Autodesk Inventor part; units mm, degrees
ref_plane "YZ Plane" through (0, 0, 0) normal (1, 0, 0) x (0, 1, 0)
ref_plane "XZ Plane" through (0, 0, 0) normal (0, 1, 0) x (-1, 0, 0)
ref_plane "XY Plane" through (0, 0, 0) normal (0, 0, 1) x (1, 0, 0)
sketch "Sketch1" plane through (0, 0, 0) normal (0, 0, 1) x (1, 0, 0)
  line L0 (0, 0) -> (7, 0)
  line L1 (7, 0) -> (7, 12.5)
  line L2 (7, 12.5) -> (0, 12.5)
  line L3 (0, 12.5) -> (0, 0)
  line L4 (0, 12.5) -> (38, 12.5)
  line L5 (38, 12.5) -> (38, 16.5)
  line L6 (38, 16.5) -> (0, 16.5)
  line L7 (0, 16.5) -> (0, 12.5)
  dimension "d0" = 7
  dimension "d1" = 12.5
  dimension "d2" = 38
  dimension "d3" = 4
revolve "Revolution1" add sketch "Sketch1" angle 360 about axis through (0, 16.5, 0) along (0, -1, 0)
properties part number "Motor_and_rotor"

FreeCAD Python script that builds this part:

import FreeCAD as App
import Part
import Sketcher

V = App.Vector


def add_polygon(sketch, points):
    """Adds a closed chain of lines whose ends are joined by coincident constraints."""
    first, n = sketch.GeometryCount, len(points)
    for a, b in zip(points, points[1:] + points[:1]):
        sketch.addGeometry(Part.LineSegment(App.Vector(*a, 0), App.Vector(*b, 0)), False)
    for i in range(n):
        sketch.addConstraint(Sketcher.Constraint("Coincident", first + i, 2, first + (i + 1) % n, 1))

doc = App.newDocument("Part")
body = doc.addObject("PartDesign::Body", "Body")

sketch1 = doc.addObject("Sketcher::SketchObject", "Sketch")
body.addObject(sketch1)
sketch1.AttachmentSupport = (doc.XY_Plane, [""])
sketch1.MapMode = "FlatFace"
add_polygon(sketch1, [(0, 0), (7, 0), (7, 12.5), (38, 12.5), (38, 16.5), (0, 16.5)])
sketch1.addConstraint([
    Sketcher.Constraint("Horizontal", 0),
    Sketcher.Constraint("Vertical", 1),
    Sketcher.Constraint("Horizontal", 2),
    Sketcher.Constraint("Vertical", 3),
    Sketcher.Constraint("Horizontal", 4),
    Sketcher.Constraint("Vertical", 5),
    Sketcher.Constraint("Coincident", 5, 2, -1, 1),
    Sketcher.Constraint("DistanceX", 0, 1, 0, 2, 7.0),
    Sketcher.Constraint("DistanceX", 4, 2, 4, 1, 38.0),
    Sketcher.Constraint("DistanceY", 3, 1, 3, 2, 4.0),
    Sketcher.Constraint("DistanceY", 1, 1, 1, 2, 12.5),
])
revolution = doc.addObject("PartDesign::Revolution", "Revolution")
body.addObject(revolution)
revolution.Profile = sketch1
revolution.ReferenceAxis = (sketch1, ["V_Axis"])
revolution.Angle = 360

doc.recompute()
